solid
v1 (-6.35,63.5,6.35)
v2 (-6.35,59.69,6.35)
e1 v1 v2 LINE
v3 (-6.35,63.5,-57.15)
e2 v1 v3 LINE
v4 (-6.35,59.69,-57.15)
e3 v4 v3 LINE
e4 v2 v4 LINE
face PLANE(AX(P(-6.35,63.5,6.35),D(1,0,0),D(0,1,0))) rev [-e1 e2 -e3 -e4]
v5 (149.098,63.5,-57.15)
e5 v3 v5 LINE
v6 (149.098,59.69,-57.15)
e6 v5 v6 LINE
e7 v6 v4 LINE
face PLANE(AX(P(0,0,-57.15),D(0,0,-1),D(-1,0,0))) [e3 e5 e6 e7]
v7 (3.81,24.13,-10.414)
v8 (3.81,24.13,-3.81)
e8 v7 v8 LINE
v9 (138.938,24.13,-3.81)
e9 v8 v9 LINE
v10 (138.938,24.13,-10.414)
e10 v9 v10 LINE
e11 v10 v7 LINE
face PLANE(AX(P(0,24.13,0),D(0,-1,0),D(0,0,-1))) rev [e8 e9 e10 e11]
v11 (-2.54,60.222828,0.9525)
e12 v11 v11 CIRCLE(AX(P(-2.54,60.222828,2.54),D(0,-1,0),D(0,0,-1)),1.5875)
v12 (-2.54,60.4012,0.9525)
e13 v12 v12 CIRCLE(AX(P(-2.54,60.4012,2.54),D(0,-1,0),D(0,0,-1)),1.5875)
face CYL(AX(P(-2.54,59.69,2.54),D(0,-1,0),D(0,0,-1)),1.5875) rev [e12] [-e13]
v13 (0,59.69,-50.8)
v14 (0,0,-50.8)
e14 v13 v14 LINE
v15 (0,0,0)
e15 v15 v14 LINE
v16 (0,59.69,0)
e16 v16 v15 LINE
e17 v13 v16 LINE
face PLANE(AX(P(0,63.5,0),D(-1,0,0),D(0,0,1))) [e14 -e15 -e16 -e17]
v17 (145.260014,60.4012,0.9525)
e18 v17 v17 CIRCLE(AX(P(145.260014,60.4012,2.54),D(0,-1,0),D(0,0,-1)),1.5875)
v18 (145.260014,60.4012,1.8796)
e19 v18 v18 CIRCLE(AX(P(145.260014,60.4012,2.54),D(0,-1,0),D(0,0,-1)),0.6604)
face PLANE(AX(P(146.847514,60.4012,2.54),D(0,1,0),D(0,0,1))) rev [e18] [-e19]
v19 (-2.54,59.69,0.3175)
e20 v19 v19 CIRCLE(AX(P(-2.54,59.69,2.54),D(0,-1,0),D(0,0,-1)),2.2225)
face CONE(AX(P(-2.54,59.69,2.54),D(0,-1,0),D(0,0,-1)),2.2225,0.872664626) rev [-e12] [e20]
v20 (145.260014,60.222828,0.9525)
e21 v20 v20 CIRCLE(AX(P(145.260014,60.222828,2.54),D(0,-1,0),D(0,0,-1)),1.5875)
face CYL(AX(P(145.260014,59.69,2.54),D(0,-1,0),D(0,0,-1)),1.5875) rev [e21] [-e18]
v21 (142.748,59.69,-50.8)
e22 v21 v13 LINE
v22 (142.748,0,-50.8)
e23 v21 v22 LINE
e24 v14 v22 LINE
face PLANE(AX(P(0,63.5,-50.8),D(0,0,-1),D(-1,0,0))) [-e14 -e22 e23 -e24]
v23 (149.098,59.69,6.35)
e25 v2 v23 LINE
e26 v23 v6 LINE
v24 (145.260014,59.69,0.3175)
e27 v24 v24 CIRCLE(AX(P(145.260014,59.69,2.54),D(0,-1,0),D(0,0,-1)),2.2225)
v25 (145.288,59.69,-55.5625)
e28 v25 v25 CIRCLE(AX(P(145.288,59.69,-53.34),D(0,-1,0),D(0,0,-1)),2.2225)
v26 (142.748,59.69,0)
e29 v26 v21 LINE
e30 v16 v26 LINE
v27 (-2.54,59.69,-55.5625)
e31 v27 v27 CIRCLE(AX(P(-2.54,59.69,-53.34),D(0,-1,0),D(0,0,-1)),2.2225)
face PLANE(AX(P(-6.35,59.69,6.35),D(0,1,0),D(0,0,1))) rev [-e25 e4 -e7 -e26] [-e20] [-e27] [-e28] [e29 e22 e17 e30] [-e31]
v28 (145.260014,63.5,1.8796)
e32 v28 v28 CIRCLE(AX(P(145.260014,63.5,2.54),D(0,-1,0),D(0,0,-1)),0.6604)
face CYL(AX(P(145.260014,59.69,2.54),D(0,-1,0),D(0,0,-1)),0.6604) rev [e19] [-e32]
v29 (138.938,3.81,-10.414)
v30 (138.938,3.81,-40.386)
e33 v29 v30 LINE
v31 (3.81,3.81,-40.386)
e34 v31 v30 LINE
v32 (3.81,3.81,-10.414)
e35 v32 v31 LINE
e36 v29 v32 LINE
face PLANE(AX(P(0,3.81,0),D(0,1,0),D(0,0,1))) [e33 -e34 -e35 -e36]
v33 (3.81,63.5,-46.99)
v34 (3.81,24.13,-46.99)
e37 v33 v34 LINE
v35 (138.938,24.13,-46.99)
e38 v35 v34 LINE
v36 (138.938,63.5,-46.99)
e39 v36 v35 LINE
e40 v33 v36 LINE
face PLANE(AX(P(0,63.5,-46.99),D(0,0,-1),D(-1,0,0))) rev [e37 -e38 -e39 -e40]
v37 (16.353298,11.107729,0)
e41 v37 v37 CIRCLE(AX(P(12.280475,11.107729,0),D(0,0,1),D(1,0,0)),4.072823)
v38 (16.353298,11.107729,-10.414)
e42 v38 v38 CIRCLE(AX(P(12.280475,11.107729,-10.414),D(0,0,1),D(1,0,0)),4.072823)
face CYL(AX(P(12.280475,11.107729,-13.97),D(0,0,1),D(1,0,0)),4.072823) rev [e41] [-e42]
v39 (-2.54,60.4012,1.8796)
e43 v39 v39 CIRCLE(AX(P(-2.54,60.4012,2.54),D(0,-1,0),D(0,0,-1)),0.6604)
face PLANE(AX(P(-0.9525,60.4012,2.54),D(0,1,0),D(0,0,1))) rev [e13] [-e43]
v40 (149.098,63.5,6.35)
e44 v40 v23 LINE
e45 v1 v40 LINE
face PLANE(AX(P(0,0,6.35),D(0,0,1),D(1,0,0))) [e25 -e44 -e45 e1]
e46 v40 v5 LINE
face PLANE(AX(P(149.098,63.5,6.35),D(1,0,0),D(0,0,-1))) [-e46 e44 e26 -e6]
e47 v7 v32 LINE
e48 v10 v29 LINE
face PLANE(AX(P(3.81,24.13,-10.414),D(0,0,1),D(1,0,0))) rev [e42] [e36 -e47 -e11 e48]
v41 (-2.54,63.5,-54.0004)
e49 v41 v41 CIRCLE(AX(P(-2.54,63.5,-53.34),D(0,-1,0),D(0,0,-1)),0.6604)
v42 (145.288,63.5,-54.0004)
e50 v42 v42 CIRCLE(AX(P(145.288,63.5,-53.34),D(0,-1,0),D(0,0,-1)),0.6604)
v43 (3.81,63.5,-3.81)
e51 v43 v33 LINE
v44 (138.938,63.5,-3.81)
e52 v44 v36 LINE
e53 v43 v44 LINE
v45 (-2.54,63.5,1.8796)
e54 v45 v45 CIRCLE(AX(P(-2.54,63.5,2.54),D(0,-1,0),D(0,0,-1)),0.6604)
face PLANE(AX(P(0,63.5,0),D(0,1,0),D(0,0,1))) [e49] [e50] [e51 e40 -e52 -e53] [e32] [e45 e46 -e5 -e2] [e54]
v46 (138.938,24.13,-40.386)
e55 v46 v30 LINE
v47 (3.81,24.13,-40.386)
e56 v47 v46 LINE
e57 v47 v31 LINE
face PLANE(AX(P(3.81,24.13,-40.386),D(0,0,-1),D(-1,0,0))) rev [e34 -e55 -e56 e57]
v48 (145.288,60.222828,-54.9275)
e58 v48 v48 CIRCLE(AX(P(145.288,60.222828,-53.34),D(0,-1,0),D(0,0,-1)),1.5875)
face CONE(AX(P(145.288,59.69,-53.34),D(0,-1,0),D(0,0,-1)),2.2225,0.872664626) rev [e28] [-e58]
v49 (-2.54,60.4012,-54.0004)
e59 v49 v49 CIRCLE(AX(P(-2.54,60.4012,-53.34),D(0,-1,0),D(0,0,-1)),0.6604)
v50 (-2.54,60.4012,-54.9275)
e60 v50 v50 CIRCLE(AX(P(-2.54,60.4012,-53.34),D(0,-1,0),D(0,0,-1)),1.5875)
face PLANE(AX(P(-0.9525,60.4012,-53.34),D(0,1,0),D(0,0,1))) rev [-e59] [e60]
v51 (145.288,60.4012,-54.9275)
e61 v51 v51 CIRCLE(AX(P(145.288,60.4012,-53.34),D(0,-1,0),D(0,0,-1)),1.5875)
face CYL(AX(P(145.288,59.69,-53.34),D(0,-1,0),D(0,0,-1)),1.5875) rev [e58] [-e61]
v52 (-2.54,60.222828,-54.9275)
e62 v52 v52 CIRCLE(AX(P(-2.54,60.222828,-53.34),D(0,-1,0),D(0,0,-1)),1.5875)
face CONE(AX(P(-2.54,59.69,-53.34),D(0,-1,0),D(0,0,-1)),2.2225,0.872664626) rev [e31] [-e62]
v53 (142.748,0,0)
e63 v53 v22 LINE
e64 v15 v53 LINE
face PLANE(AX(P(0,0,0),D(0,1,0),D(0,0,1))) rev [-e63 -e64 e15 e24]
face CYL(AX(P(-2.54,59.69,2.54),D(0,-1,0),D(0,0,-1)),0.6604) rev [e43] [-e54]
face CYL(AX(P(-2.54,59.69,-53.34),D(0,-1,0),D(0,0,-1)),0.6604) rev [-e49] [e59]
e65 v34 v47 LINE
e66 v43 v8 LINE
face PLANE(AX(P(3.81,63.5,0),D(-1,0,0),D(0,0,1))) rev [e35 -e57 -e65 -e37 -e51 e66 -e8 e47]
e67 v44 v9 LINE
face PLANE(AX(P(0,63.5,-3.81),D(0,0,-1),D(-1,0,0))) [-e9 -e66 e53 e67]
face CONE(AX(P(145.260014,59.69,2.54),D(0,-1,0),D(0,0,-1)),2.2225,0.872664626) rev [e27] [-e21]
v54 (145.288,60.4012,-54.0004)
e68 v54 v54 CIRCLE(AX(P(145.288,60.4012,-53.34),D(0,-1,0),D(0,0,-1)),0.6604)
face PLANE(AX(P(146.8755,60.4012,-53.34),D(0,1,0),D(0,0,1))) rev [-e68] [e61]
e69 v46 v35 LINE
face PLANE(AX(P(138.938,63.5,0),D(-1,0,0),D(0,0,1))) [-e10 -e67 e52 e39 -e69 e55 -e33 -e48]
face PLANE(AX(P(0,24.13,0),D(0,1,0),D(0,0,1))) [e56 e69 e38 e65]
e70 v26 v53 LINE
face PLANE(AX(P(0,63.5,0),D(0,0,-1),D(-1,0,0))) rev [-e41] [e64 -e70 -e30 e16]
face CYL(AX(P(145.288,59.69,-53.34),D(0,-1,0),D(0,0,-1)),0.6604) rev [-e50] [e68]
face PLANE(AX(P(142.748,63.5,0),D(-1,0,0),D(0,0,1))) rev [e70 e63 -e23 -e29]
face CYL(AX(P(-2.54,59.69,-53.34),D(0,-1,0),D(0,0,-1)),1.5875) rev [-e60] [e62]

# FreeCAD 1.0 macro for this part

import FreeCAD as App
import Part
import Sketcher

V = App.Vector
Q = App.Units.Quantity


def faces_at(feature, points):
    """Names of the faces that lie closest to the given points."""
    faces = feature.Shape.Faces
    near = lambda p: min(range(len(faces)), key=lambda i: faces[i].distToShape(Part.Vertex(*p))[0])
    return sorted({f"Face{near(p) + 1}" for p in points})


def add_polygon(sketch, points):
    """Adds a closed chain of lines whose ends are joined by coincident constraints."""
    first, n = sketch.GeometryCount, len(points)
    for a, b in zip(points, points[1:] + points[:1]):
        sketch.addGeometry(Part.LineSegment(App.Vector(*a, 0), App.Vector(*b, 0)), False)
    for i in range(n):
        sketch.addConstraint(Sketcher.Constraint("Coincident", first + i, 2, first + (i + 1) % n, 1))

doc = App.newDocument("Part")
params = doc.addObject("Spreadsheet::Sheet", "Params")
for row, (alias, value) in enumerate([
    ("sketch1_height", "2 in"),
    ("sketch1_width", "5.62 in"),
    ("pad1_length", "2.5 in"),
    ("thickness_wall", "0.15 in"),
    ("sketch2_width", "6.12 in"),
    ("sketch2_height", "0.15 in"),
    ("pad2_length", "0.25 in"),
    ("sketch3_width", "6.12 in"),
    ("sketch3_height", "0.15 in"),
    ("pad3_length", "0.25 in"),
    ("sketch4_height", "2 in"),
    ("sketch4_width", "0.15 in"),
    ("pad4_length", "0.25 in"),
    ("sketch5_height", "2 in"),
    ("sketch5_width", "0.15 in"),
    ("pad5_length", "0.25 in"),
    ("sketch6_width", "0.15 in"),
    ("sketch6_width2", "0.122 in"),
    ("sketch6_height", "0.026 in"),
    ("groove_angle", "360 deg"),
    ("linearpattern_pitch", "147.800014 mm"),
    ("linearpattern2_pitch", "158.036996 mm"),
    ("linearpattern3_pitch", "2.2 in"),
    ("sketch7_width", "5.32 in"),
    ("sketch7_height", "0.26 in"),
    ("pad6_length", "0.8 in"),
    ("pocket1_length", "0.55 in"),
], start=1):
    params.set(f"A{row}", alias)
    params.set(f"B{row}", "=" + value)
    params.setAlias(f"B{row}", alias)

body = doc.addObject("PartDesign::Body", "Body")

# Sketch on XZ plane
sketch1 = body.newObject("Sketcher::SketchObject", "Sketch")
sketch1.AttachmentSupport = (doc.getObject("XZ_Plane"), [""])
sketch1.MapMode = "FlatFace"
add_polygon(sketch1, [(0, -51), (0, 0), (143, 0), (143, -51)])  # lines 0-3
sketch1.addConstraint(Sketcher.Constraint("Vertical", 0))
sketch1.addConstraint(Sketcher.Constraint("Horizontal", 1))
sketch1.addConstraint(Sketcher.Constraint("Vertical", 2))
sketch1.addConstraint(Sketcher.Constraint("Horizontal", 3))
sketch1.addConstraint(Sketcher.Constraint("Coincident", 0, 2, -1, 1))
sketch1.addConstraint(Sketcher.Constraint("DistanceY", 0, 1, 0, 2, Q("2 in")))
sketch1.addConstraint(Sketcher.Constraint("DistanceX", 1, 1, 1, 2, Q("5.62 in")))
sketch1.setExpression("Constraints[9]", "Params.sketch1_height")
sketch1.setExpression("Constraints[10]", "Params.sketch1_width")
pad1 = body.newObject("PartDesign::Pad", "Pad")
pad1.Profile = sketch1
pad1.setExpression("Length", "Params.pad1_length")
pad1.Reversed = True
doc.recompute()

thickness = body.newObject("PartDesign::Thickness", "Thickness")
thickness.Base = (pad1, faces_at(pad1, [(71.374, 63.5, -25.4)]))
thickness.setExpression("Value", "Params.thickness_wall")
thickness.Reversed = True
thickness.Join = "Intersection"

# Sketch on XY plane
sketch2 = body.newObject("Sketcher::SketchObject", "Sketch001")
sketch2.AttachmentSupport = (doc.getObject("XY_Plane"), [""])
sketch2.MapMode = "FlatFace"
add_polygon(sketch2, [(-6.3, 63.5), (-6.3, 59.7), (149.1, 59.7), (149.1, 63.5)])  # lines 0-3
sketch2.addConstraint(Sketcher.Constraint("Vertical", 0))
sketch2.addConstraint(Sketcher.Constraint("Horizontal", 1))
sketch2.addConstraint(Sketcher.Constraint("Vertical", 2))
sketch2.addConstraint(Sketcher.Constraint("Horizontal", 3))
sketch2.addConstraint(Sketcher.Constraint("DistanceX", 1, 1, 1, 2, Q("6.12 in")))
sketch2.addConstraint(Sketcher.Constraint("DistanceY", 0, 2, 0, 1, Q("0.15 in")))
sketch2.addConstraint(Sketcher.Constraint("DistanceY", -1, 1, 2, 2, Q("2.5 in")))
sketch2.addConstraint(Sketcher.Constraint("DistanceX", 0, 2, -1, 1, Q("0.25 in")))
sketch2.setExpression("Constraints[8]", "Params.sketch2_width")
sketch2.setExpression("Constraints[9]", "Params.sketch2_height")
pad2 = body.newObject("PartDesign::Pad", "Pad001")
pad2.Profile = sketch2
pad2.setExpression("Length", "Params.pad2_length")

# Sketch on XY plane
sketch3 = body.newObject("Sketcher::SketchObject", "Sketch002")
sketch3.AttachmentSupport = (doc.getObject("XY_Plane"), [""])
sketch3.MapMode = "FlatFace"
sketch3.AttachmentOffset = App.Placement(V(0, 0, -2 * 25.4), App.Rotation())
add_polygon(sketch3, [(149.1, 63.5), (149.1, 59.7), (-6.3, 59.7), (-6.3, 63.5)])  # lines 0-3
sketch3.addConstraint(Sketcher.Constraint("Vertical", 0))
sketch3.addConstraint(Sketcher.Constraint("Horizontal", 1))
sketch3.addConstraint(Sketcher.Constraint("Vertical", 2))
sketch3.addConstraint(Sketcher.Constraint("Horizontal", 3))
sketch3.addConstraint(Sketcher.Constraint("DistanceX", 1, 2, 1, 1, Q("6.12 in")))
sketch3.addConstraint(Sketcher.Constraint("DistanceY", 0, 2, 0, 1, Q("0.15 in")))
sketch3.addConstraint(Sketcher.Constraint("DistanceY", -1, 1, 2, 2, Q("2.5 in")))
sketch3.addConstraint(Sketcher.Constraint("DistanceX", -1, 1, 0, 2, Q("5.87 in")))
sketch3.setExpression("Constraints[8]", "Params.sketch3_width")
sketch3.setExpression("Constraints[9]", "Params.sketch3_height")
pad3 = body.newObject("PartDesign::Pad", "Pad002")
pad3.Profile = sketch3
pad3.setExpression("Length", "Params.pad3_length")
pad3.Reversed = True

# Sketch on YZ plane
sketch4 = body.newObject("Sketcher::SketchObject", "Sketch003")
sketch4.AttachmentSupport = (doc.getObject("YZ_Plane"), [""])
sketch4.MapMode = "FlatFace"
add_polygon(sketch4, [(63.5, -50.8), (59.7, -50.8), (59.7, 0), (63.5, 0)])  # lines 0-3
sketch4.addConstraint(Sketcher.Constraint("Horizontal", 0))
sketch4.addConstraint(Sketcher.Constraint("Vertical", 1))
sketch4.addConstraint(Sketcher.Constraint("Horizontal", 2))
sketch4.addConstraint(Sketcher.Constraint("Vertical", 3))
sketch4.addConstraint(Sketcher.Constraint("PointOnObject", 1, 2, -1))
sketch4.addConstraint(Sketcher.Constraint("DistanceY", 1, 1, 1, 2, Q("2 in")))
sketch4.addConstraint(Sketcher.Constraint("DistanceX", 0, 2, 0, 1, Q("0.15 in")))
sketch4.addConstraint(Sketcher.Constraint("DistanceX", -1, 1, 2, 2, Q("2.5 in")))
sketch4.setExpression("Constraints[9]", "Params.sketch4_height")
sketch4.setExpression("Constraints[10]", "Params.sketch4_width")
pad4 = body.newObject("PartDesign::Pad", "Pad003")
pad4.Profile = sketch4
pad4.setExpression("Length", "Params.pad4_length")
pad4.Reversed = True

# Sketch on YZ plane
sketch5 = body.newObject("Sketcher::SketchObject", "Sketch004")
sketch5.AttachmentSupport = (doc.getObject("YZ_Plane"), [""])
sketch5.MapMode = "FlatFace"
sketch5.AttachmentOffset = App.Placement(V(0, 0, 5.62 * 25.4), App.Rotation())
add_polygon(sketch5, [(63.5, 0), (59.7, 0), (59.7, -50.8), (63.5, -50.8)])  # lines 0-3
sketch5.addConstraint(Sketcher.Constraint("Horizontal", 0))
sketch5.addConstraint(Sketcher.Constraint("Vertical", 1))
sketch5.addConstraint(Sketcher.Constraint("Horizontal", 2))
sketch5.addConstraint(Sketcher.Constraint("Vertical", 3))
sketch5.addConstraint(Sketcher.Constraint("PointOnObject", 0, 2, -1))
sketch5.addConstraint(Sketcher.Constraint("DistanceY", 1, 2, 1, 1, Q("2 in")))
sketch5.addConstraint(Sketcher.Constraint("DistanceX", 0, 2, 0, 1, Q("0.15 in")))
sketch5.addConstraint(Sketcher.Constraint("DistanceX", -1, 1, 2, 2, Q("2.5 in")))
sketch5.setExpression("Constraints[9]", "Params.sketch5_height")
sketch5.setExpression("Constraints[10]", "Params.sketch5_width")
pad5 = body.newObject("PartDesign::Pad", "Pad004")
pad5.Profile = sketch5
pad5.setExpression("Length", "Params.pad5_length")

# Sketch on YZ plane
sketch6 = body.newObject("Sketcher::SketchObject", "Sketch005")
sketch6.AttachmentSupport = (doc.getObject("YZ_Plane"), [""])
sketch6.MapMode = "FlatFace"
sketch6.AttachmentOffset = App.Placement(V(0, 0, -0.1 * 25.4), App.Rotation())
add_polygon(sketch6, [(63.5, 2.54), (59.69, 2.54), (59.69, 0.32), (60.22, 0.95), (60.4, 0.95), (60.4, 1.88), (63.5, 1.88)])  # lines 0-6
sketch6.addGeometry(Part.LineSegment(V(59.69, 2.54, 0), V(63.5, 2.54, 0)), True)  # axis
sketch6.addConstraint(Sketcher.Constraint("Horizontal", 0))
sketch6.addConstraint(Sketcher.Constraint("Vertical", 1))
sketch6.addConstraint(Sketcher.Constraint("Horizontal", 3))
sketch6.addConstraint(Sketcher.Constraint("Vertical", 4))
sketch6.addConstraint(Sketcher.Constraint("Horizontal", 5))
sketch6.addConstraint(Sketcher.Constraint("Vertical", 6))
sketch6.addConstraint(Sketcher.Constraint("Horizontal", 7))
sketch6.addConstraint(Sketcher.Constraint("Coincident", 7, 1, 0, 2))
sketch6.addConstraint(Sketcher.Constraint("Vertical", 5, 2, 7, 2))
sketch6.addConstraint(Sketcher.Constraint("Angle", 2, Q("50 deg")))
sketch6.addConstraint(Sketcher.Constraint("DistanceX", 0, 2, 0, 1, Q("0.15 in")))
sketch6.addConstraint(Sketcher.Constraint("DistanceY", -1, 1, 0, 2, Q("0.1 in")))
sketch6.addConstraint(Sketcher.Constraint("DistanceX", -1, 1, 5, 2, Q("2.5 in")))
sketch6.addConstraint(Sketcher.Constraint("DistanceX", 5, 1, 5, 2, Q("0.122 in")))
sketch6.addConstraint(Sketcher.Constraint("DistanceY", 6, 1, 6, 2, Q("0.026 in")))
sketch6.addConstraint(Sketcher.Constraint("DistanceY", 1, 2, 1, 1, Q("0.0875 in")))
sketch6.addConstraint(Sketcher.Constraint("DistanceY", 4, 1, 4, 2, Q("0.0365 in")))
sketch6.setExpression("Constraints[17]", "Params.sketch6_width")
sketch6.setExpression("Constraints[20]", "Params.sketch6_width2")
sketch6.setExpression("Constraints[21]", "Params.sketch6_height")
groove = body.newObject("PartDesign::Groove", "Groove")
groove.Profile = sketch6
groove.ReferenceAxis = (sketch6, ["Axis0"])
groove.setExpression("Angle", "Params.groove_angle")
doc.recompute()

linearpattern = body.newObject("PartDesign::LinearPattern", "LinearPattern")
linearpattern.Originals = [groove]
linearpattern.Direction = (doc.getObject("X_Axis"), [""])
linearpattern.Mode = "offset"
linearpattern.setExpression("Offset", "Params.linearpattern_pitch")
linearpattern.Occurrences = 2
body.Tip = linearpattern
doc.recompute()

datumline = body.newObject("PartDesign::Line", "DatumLine")
datumline.Placement = App.Placement(V(0, 0, 0), App.Rotation(V(0, 0, 1), V(0.935401229, 0, -0.353588094)))
linearpattern2 = body.newObject("PartDesign::LinearPattern", "LinearPattern001")
linearpattern2.Originals = [groove]
linearpattern2.Direction = (datumline, [""])
linearpattern2.Mode = "offset"
linearpattern2.setExpression("Offset", "Params.linearpattern2_pitch")
linearpattern2.Occurrences = 2
body.Tip = linearpattern2
doc.recompute()

linearpattern3 = body.newObject("PartDesign::LinearPattern", "LinearPattern002")
linearpattern3.Originals = [groove]
linearpattern3.Direction = (doc.getObject("Z_Axis"), [""])
linearpattern3.Mode = "offset"
linearpattern3.setExpression("Offset", "Params.linearpattern3_pitch")
linearpattern3.Occurrences = 2
linearpattern3.Reversed = True
body.Tip = linearpattern3

# Sketch on XZ plane
sketch7 = body.newObject("Sketcher::SketchObject", "Sketch006")
sketch7.AttachmentSupport = (doc.getObject("XZ_Plane"), [""])
sketch7.MapMode = "FlatFace"
sketch7.AttachmentOffset = App.Placement(V(0, 0, -0.15 * 25.4), App.Rotation())
add_polygon(sketch7, [(4, -47), (4, -40), (139, -40), (139, -47)])  # lines 0-3
add_polygon(sketch7, [(4, -10), (4, -4), (139, -4), (139, -10)])  # lines 4-7
sketch7.addConstraint(Sketcher.Constraint("Vertical", 0))
sketch7.addConstraint(Sketcher.Constraint("Horizontal", 1))
sketch7.addConstraint(Sketcher.Constraint("Vertical", 2))
sketch7.addConstraint(Sketcher.Constraint("Horizontal", 3))
sketch7.addConstraint(Sketcher.Constraint("Vertical", 4))
sketch7.addConstraint(Sketcher.Constraint("Horizontal", 5))
sketch7.addConstraint(Sketcher.Constraint("Vertical", 6))
sketch7.addConstraint(Sketcher.Constraint("Horizontal", 7))
sketch7.addConstraint(Sketcher.Constraint("Vertical", 3, 2, 4, 2))
sketch7.addConstraint(Sketcher.Constraint("Vertical", 2, 2, 5, 2))
sketch7.addConstraint(Sketcher.Constraint("Equal", 2, 4))
sketch7.addConstraint(Sketcher.Constraint("DistanceX", 1, 1, 1, 2, Q("5.32 in")))
sketch7.addConstraint(Sketcher.Constraint("DistanceY", 0, 1, 0, 2, Q("0.26 in")))
sketch7.addConstraint(Sketcher.Constraint("DistanceY", 3, 2, 4, 2, Q("1.7 in")))
sketch7.addConstraint(Sketcher.Constraint("DistanceX", -1, 1, 0, 2, Q("0.15 in")))
sketch7.addConstraint(Sketcher.Constraint("DistanceY", 0, 2, -1, 1, Q("1.59 in")))
sketch7.setExpression("Constraints[19]", "Params.sketch7_width")
sketch7.setExpression("Constraints[20]", "Params.sketch7_height")
pad6 = body.newObject("PartDesign::Pad", "Pad005")
pad6.Profile = sketch7
pad6.setExpression("Length", "Params.pad6_length")
pad6.Reversed = True

# Sketch on XY plane
sketch8 = body.newObject("Sketcher::SketchObject", "Sketch007")
sketch8.AttachmentSupport = (doc.getObject("XY_Plane"), [""])
sketch8.MapMode = "FlatFace"
sketch8.addGeometry(Part.Circle(V(12.3, 11.1, 0), V(0, 0, 1), 4.1), False)
sketch8.addConstraint(Sketcher.Constraint("Diameter", 0, 8.145646))
sketch8.addConstraint(Sketcher.Constraint("DistanceY", -1, 1, 0, 3, 11.107729))
sketch8.addConstraint(Sketcher.Constraint("DistanceX", -1, 1, 0, 3, 12.280475))
pocket1 = body.newObject("PartDesign::Pocket", "Pocket")
pocket1.Profile = sketch8
pocket1.setExpression("Length", "Params.pocket1_length")

doc.recompute()
